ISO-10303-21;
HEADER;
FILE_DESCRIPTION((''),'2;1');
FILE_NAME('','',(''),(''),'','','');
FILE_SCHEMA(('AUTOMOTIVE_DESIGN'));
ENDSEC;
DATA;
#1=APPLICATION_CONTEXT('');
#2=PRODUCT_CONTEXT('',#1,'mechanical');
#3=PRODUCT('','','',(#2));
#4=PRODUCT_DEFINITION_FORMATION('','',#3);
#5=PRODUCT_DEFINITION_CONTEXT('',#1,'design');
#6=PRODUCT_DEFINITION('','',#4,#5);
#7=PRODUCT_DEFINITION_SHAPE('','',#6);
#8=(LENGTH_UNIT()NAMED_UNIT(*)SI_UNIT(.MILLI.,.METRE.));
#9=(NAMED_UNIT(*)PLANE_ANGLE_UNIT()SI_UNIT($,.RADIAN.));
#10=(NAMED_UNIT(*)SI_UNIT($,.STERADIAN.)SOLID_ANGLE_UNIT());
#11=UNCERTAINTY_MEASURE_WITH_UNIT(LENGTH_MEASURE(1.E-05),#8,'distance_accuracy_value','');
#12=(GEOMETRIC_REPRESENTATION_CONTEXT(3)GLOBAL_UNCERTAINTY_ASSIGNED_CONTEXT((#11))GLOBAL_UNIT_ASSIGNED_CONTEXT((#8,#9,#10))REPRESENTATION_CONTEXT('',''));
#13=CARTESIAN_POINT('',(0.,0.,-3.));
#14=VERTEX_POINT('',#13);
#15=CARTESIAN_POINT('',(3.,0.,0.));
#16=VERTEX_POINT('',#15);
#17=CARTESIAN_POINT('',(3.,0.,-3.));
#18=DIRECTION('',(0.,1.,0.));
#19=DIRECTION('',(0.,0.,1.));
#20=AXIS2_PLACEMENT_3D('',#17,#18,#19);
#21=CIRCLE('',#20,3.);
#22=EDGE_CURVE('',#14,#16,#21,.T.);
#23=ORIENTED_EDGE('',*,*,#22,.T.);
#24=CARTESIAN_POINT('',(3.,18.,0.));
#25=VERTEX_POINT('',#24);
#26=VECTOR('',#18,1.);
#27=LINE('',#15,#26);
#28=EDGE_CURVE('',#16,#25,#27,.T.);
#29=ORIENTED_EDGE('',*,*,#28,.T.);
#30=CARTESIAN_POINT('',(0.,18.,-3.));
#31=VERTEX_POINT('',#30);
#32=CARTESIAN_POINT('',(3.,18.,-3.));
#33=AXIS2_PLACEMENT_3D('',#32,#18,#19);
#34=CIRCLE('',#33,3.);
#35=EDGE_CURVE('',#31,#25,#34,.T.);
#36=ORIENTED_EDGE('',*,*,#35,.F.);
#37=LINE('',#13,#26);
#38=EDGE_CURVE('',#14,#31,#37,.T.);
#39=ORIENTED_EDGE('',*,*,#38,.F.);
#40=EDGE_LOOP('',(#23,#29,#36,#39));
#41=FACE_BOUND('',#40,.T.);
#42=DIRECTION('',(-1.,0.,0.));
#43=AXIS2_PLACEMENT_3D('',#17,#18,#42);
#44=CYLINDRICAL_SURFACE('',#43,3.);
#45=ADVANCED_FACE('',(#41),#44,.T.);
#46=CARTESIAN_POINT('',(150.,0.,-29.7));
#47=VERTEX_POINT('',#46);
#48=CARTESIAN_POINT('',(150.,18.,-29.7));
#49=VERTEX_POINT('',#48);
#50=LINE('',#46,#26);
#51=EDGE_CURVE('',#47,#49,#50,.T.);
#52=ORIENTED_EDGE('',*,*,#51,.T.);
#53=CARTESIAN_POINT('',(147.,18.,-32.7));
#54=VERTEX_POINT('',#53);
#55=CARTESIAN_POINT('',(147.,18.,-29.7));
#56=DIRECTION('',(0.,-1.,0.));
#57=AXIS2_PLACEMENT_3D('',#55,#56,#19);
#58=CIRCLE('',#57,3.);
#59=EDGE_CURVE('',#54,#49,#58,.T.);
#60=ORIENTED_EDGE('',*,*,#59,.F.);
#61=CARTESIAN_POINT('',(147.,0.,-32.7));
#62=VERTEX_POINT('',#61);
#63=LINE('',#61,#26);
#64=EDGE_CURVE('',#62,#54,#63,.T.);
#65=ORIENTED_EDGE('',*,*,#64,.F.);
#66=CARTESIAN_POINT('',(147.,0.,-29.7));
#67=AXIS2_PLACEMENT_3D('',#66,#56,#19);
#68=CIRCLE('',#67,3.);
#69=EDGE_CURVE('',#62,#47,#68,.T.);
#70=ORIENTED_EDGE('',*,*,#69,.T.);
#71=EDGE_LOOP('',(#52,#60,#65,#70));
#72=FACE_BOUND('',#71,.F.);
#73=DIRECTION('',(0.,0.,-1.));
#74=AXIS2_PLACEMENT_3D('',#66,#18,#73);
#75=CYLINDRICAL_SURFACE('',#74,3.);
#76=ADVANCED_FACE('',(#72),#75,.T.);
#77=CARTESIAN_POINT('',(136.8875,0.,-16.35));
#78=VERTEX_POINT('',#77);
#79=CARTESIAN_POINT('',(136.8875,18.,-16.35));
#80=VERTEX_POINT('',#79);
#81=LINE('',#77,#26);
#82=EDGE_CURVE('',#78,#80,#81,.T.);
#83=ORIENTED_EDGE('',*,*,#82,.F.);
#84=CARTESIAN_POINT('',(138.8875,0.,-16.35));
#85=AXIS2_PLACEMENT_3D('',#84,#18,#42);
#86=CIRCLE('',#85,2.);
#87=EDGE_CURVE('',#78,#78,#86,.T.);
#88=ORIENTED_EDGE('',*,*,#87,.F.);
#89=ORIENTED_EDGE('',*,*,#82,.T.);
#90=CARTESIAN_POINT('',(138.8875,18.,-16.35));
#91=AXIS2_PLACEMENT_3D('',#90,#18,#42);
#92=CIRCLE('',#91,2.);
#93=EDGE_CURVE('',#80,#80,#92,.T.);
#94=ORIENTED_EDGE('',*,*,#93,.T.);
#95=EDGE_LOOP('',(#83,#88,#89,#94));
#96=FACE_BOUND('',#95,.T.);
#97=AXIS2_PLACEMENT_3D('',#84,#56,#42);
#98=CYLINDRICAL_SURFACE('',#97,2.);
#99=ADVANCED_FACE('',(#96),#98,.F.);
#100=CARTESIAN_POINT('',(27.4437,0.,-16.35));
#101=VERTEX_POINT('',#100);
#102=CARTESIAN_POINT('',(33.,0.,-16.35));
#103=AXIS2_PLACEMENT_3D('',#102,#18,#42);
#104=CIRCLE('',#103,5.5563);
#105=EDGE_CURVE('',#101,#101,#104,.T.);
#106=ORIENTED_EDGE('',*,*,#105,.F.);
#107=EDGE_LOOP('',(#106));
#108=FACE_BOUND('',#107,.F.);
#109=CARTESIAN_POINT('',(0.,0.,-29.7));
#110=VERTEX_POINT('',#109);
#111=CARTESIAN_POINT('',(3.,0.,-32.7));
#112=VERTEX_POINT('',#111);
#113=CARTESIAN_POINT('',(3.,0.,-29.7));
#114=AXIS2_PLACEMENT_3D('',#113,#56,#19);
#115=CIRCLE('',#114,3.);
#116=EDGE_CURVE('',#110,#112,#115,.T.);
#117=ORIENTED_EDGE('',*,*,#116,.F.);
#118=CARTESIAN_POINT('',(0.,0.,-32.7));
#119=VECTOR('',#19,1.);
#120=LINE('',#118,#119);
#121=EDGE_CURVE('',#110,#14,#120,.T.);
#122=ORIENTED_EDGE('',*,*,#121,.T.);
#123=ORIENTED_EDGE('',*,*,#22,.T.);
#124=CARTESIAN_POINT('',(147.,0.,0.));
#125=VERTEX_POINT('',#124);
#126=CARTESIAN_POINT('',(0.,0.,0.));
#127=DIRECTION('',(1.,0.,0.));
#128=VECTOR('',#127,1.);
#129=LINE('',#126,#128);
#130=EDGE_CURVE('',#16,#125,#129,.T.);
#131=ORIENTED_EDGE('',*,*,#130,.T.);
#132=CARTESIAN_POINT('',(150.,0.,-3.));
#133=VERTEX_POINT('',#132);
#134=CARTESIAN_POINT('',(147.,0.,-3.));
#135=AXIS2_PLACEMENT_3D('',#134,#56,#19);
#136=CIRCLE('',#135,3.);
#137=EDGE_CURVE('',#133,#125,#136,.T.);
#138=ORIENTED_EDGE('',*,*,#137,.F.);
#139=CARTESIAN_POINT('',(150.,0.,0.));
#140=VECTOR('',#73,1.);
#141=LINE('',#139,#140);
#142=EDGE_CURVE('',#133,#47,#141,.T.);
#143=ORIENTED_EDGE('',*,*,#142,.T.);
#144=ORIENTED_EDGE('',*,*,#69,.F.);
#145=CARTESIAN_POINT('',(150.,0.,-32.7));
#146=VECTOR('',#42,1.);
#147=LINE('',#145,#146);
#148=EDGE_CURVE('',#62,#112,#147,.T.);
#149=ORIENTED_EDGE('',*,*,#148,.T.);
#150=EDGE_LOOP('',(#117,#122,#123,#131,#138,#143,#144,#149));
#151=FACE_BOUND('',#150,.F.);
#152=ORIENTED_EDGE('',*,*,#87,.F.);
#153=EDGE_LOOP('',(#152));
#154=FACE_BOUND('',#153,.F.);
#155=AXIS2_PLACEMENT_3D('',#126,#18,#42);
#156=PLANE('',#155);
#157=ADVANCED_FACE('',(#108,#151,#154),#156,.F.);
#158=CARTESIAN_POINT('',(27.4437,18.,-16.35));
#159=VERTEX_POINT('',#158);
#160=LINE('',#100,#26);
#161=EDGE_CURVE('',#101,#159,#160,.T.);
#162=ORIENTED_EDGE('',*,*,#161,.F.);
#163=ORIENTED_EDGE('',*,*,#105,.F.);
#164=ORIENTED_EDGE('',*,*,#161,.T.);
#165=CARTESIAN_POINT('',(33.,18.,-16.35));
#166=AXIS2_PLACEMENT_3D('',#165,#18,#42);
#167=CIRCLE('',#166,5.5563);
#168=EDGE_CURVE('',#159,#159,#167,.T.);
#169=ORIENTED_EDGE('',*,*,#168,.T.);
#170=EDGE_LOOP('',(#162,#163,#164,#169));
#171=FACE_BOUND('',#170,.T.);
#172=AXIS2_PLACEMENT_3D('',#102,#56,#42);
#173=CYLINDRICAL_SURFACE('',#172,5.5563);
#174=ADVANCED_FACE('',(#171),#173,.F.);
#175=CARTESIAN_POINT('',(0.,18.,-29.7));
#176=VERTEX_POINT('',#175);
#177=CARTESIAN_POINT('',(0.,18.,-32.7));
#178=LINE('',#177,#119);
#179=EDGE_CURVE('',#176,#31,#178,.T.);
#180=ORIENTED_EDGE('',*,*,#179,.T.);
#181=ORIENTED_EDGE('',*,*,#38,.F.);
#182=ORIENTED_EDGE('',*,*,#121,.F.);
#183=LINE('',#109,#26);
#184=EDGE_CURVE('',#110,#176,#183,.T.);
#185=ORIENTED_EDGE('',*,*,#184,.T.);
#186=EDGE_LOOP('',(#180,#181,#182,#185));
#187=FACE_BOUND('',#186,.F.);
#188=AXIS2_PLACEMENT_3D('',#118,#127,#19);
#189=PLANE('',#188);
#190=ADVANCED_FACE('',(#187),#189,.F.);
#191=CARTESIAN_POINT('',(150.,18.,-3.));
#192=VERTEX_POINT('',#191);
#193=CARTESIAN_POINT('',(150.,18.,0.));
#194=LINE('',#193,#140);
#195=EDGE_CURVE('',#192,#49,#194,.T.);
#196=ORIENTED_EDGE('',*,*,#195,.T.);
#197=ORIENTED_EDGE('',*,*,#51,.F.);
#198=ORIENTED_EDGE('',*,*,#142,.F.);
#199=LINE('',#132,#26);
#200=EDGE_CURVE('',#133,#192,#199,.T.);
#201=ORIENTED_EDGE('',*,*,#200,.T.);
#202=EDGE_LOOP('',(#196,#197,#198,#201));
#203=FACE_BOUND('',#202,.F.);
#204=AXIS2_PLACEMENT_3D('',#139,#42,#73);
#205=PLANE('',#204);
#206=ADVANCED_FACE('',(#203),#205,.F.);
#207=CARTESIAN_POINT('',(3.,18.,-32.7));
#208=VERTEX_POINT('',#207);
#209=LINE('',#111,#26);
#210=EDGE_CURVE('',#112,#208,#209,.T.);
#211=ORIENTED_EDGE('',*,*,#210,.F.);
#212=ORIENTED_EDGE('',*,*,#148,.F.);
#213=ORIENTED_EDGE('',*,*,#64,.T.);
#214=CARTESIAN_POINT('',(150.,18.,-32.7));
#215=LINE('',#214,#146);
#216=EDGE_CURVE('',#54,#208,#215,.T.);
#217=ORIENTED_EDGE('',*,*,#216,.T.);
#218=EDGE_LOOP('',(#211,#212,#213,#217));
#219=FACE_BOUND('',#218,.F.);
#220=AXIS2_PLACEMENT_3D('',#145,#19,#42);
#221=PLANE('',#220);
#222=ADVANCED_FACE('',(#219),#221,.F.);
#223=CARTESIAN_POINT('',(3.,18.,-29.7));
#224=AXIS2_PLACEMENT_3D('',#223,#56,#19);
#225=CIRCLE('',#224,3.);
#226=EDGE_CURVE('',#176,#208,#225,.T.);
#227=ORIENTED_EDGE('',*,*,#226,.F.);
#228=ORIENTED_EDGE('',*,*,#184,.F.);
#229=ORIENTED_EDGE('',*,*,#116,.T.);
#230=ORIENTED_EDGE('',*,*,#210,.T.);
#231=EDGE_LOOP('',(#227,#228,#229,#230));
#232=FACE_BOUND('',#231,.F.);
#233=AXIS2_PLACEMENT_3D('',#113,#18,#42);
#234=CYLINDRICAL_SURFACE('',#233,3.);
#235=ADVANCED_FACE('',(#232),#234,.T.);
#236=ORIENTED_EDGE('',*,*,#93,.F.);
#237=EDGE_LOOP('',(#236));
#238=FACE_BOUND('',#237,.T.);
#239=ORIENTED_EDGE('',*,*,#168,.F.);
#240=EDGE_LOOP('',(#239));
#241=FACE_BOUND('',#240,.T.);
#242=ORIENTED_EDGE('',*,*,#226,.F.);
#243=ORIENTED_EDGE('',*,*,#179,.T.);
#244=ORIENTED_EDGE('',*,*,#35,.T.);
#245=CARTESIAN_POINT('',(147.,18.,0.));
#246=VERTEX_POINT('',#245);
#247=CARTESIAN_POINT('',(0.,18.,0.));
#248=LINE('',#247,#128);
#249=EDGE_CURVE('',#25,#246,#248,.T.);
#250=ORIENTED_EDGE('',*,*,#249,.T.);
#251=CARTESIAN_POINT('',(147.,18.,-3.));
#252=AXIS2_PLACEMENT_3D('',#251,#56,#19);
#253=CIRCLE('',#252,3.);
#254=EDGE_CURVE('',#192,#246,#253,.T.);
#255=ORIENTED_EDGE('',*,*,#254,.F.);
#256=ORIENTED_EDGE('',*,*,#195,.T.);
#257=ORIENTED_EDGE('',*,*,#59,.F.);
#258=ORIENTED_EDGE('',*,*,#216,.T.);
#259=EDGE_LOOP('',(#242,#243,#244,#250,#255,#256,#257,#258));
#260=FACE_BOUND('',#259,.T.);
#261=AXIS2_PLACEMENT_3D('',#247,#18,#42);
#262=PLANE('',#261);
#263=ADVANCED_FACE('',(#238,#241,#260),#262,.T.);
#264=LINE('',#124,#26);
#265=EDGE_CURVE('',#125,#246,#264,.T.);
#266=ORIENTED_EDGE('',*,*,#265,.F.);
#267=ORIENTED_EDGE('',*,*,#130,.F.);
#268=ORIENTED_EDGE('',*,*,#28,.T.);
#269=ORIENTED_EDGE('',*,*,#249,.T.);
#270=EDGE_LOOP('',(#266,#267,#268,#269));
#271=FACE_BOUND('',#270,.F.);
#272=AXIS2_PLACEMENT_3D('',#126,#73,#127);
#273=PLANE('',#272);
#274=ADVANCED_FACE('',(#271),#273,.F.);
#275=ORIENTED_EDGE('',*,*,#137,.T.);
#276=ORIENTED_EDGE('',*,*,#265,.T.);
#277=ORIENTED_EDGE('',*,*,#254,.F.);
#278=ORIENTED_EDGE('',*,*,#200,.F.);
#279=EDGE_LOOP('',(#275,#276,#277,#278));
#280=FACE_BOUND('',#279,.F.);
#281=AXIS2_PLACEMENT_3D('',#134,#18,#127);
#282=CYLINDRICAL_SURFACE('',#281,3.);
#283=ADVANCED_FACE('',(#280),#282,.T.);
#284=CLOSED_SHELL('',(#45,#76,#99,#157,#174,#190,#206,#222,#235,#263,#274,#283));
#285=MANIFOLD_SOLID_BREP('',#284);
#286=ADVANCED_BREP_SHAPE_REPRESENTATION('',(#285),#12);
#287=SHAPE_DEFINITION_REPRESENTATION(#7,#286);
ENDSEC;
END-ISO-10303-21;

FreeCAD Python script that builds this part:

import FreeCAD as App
import Part
import Sketcher
from FreeCAD import Vector
Q = App.Units.Quantity


def edges_at(feature, points):
    """Names of the edges that pass closest to the given points."""
    edges = feature.Shape.Edges
    near = lambda p: min(range(len(edges)), key=lambda i: edges[i].distToShape(Part.Vertex(*p))[0])
    return sorted({f"Edge{near(p) + 1}" for p in points})

doc = App.newDocument("Part")
params = doc.addObject("Spreadsheet::Sheet", "Params")
for row, (alias, value) in enumerate([
    ("sketch1_diameter", "4 mm"),
    ("sketch1_width", "150 mm"),
    ("sketch1_height", "32.7 mm"),
    ("pad1_length", "18 mm"),
    ("fillet_radius", "3 mm"),
], start=1):
    params.set(f"A{row}", alias)
    params.set(f"B{row}", "=" + value)
    params.setAlias(f"B{row}", alias)

body = doc.addObject("PartDesign::Body", "Body")

# Sketch on XZ plane
sketch1 = doc.addObject("Sketcher::SketchObject", "Sketch")
body.addObject(sketch1)
sketch1.AttachmentSupport = (doc.XZ_Plane, [""])
sketch1.MapMode = "FlatFace"
sketch1.addGeometry([
    Part.LineSegment(Vector(0, -32.7, 0), Vector(0, 0, 0)),  # 0
    Part.LineSegment(Vector(0, 0, 0), Vector(150, 0, 0)),  # 1
    Part.LineSegment(Vector(150, 0, 0), Vector(150, -32.7, 0)),  # 2
    Part.LineSegment(Vector(150, -32.7, 0), Vector(0, -32.7, 0)),  # 3
    Part.Circle(Vector(138.9, -16.4, 0), Vector(0, 0, 1), 2),  # 4
    Part.Circle(Vector(33, -16.4, 0), Vector(0, 0, 1), 5.6),  # 5
], False)
sketch1.addConstraint([
    Sketcher.Constraint("Coincident", 0, 2, 1, 1),
    Sketcher.Constraint("Coincident", 1, 2, 2, 1),
    Sketcher.Constraint("Coincident", 2, 2, 3, 1),
    Sketcher.Constraint("Coincident", 3, 2, 0, 1),
    Sketcher.Constraint("Vertical", 0),
    Sketcher.Constraint("Horizontal", 1),
    Sketcher.Constraint("Vertical", 2),
    Sketcher.Constraint("Horizontal", 3),
    Sketcher.Constraint("Coincident", 0, 2, -1, 1),
    Sketcher.Constraint("Horizontal", 4, 3, 5, 3),
    Sketcher.Constraint("Diameter", 4, Q("4 mm")),
    Sketcher.Constraint("DistanceX", 1, 1, 1, 2, Q("150 mm")),
    Sketcher.Constraint("DistanceY", 0, 1, 0, 2, Q("32.7 mm")),
    Sketcher.Constraint("DistanceX", -1, 1, 5, 3, Q("33 mm")),
    Sketcher.Constraint("Diameter", 5, Q("11.1126 mm")),
    Sketcher.Constraint("DistanceX", 4, 3, 1, 2, Q("11.1125 mm")),
    Sketcher.Constraint("DistanceY", 4, 3, -1, 1, Q("16.35 mm")),
])
sketch1.setExpression("Constraints[10]", "Params.sketch1_diameter")
sketch1.setExpression("Constraints[11]", "Params.sketch1_width")
sketch1.setExpression("Constraints[12]", "Params.sketch1_height")
pad1 = doc.addObject("PartDesign::Pad", "Pad")
body.addObject(pad1)
pad1.Profile = sketch1
pad1.setExpression("Length", "Params.pad1_length")
pad1.Reversed = True
doc.recompute()

fillet = doc.addObject("PartDesign::Fillet", "Fillet")
body.addObject(fillet)
fillet.Base = (pad1, edges_at(pad1, [
    (0, 9, 0),
    (150, 9, 0),
    (150, 9, -32.7),
    (0, 9, -32.7),
]))
fillet.setExpression("Radius", "Params.fillet_radius")

doc.recompute()
